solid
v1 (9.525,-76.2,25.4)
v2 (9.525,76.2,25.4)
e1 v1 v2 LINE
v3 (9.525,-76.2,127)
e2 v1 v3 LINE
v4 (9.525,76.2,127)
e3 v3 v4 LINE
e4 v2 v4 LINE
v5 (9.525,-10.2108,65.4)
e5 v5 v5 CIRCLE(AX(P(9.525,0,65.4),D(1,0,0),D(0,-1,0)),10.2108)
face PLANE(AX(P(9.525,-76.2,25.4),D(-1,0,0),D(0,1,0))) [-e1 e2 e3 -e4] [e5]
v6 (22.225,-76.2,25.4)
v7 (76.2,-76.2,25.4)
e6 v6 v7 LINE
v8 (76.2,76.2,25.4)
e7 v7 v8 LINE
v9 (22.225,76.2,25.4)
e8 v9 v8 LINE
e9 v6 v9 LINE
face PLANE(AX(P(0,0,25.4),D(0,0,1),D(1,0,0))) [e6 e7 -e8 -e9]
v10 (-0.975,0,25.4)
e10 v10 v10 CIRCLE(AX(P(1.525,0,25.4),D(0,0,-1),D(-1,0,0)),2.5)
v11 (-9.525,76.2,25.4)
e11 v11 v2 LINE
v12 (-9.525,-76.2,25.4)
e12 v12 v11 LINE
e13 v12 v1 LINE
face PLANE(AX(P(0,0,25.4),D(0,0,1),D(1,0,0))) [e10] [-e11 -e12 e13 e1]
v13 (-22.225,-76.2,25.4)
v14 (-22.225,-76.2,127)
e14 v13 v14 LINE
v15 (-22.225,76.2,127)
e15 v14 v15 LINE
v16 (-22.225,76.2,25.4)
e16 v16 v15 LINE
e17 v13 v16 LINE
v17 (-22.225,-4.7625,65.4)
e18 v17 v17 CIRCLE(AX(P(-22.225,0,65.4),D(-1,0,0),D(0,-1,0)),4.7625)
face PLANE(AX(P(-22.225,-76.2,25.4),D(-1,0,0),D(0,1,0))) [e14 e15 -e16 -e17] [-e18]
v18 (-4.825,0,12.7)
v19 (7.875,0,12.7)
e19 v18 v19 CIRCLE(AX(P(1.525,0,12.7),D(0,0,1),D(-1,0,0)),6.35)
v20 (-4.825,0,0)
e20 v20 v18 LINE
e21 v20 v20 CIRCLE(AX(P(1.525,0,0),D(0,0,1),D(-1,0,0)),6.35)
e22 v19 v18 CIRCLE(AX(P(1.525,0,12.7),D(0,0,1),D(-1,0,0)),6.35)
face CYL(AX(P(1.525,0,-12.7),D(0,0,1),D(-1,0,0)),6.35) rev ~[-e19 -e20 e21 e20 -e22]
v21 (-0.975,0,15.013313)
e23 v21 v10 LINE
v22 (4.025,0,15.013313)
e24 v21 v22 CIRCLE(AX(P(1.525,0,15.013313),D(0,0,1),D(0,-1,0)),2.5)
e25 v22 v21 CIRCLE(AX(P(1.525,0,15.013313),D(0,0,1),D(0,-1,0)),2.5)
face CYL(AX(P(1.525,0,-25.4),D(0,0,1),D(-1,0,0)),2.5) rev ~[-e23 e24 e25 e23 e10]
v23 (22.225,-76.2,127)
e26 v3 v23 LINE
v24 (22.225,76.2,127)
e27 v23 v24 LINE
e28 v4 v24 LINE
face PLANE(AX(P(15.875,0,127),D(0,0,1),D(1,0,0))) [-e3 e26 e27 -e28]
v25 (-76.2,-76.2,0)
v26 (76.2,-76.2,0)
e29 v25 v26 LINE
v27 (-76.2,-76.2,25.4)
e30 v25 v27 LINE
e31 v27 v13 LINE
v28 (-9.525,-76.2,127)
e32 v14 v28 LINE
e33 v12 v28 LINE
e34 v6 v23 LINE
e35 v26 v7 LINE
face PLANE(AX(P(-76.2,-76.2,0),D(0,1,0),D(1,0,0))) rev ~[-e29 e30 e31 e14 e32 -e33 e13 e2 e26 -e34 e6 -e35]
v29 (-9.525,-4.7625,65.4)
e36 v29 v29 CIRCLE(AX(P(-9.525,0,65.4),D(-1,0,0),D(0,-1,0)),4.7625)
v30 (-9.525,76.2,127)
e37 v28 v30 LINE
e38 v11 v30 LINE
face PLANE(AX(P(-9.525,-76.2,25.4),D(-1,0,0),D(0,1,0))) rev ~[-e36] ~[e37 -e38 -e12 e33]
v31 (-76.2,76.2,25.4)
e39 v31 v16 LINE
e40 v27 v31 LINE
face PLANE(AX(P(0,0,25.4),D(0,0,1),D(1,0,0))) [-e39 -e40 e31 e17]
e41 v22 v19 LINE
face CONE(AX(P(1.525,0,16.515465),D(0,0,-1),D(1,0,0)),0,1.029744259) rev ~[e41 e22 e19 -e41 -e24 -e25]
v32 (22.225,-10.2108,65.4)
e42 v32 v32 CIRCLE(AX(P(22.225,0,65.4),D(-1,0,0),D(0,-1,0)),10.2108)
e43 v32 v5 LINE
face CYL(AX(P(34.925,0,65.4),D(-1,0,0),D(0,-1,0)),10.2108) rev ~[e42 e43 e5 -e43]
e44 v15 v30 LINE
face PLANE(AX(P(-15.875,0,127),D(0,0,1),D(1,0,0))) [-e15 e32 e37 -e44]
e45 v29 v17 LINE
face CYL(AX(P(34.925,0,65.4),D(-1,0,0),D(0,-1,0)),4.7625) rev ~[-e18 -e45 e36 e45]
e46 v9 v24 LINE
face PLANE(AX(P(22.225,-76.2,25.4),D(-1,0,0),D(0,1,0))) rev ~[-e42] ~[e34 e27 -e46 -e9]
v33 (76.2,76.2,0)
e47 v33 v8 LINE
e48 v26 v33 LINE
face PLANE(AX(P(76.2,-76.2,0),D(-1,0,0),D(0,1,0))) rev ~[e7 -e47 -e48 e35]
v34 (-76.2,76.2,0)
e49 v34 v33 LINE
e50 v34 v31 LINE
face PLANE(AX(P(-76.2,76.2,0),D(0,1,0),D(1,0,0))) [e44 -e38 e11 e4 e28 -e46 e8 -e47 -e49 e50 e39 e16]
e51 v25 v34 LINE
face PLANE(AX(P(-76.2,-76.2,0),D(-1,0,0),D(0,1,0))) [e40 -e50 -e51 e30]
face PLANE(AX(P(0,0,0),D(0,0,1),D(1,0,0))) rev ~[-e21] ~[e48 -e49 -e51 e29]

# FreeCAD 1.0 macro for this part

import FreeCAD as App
import Part
import Sketcher
from FreeCAD import Vector
Q = App.Units.Quantity

doc = App.newDocument("Part")
body = doc.addObject("PartDesign::Body", "Body")

sketch1 = doc.addObject("Sketcher::SketchObject", "Sketch")
body.addObject(sketch1)
sketch1.AttachmentSupport = (doc.XY_Plane, [""])
sketch1.MapMode = "FlatFace"
sketch1.addGeometry(Part.LineSegment(Vector(-76.2, 76.2, 0), Vector(-76.2, -76.2, 0)), False)
sketch1.addGeometry(Part.LineSegment(Vector(-76.2, -76.2, 0), Vector(76.2, -76.2, 0)), False)
sketch1.addGeometry(Part.LineSegment(Vector(76.2, -76.2, 0), Vector(76.2, 76.2, 0)), False)
sketch1.addGeometry(Part.LineSegment(Vector(76.2, 76.2, 0), Vector(-76.2, 76.2, 0)), False)
sketch1.addConstraint(Sketcher.Constraint("Coincident", 0, 2, 1, 1))
sketch1.addConstraint(Sketcher.Constraint("Coincident", 1, 2, 2, 1))
sketch1.addConstraint(Sketcher.Constraint("Coincident", 2, 2, 3, 1))
sketch1.addConstraint(Sketcher.Constraint("Coincident", 3, 2, 0, 1))
sketch1.addConstraint(Sketcher.Constraint("Vertical", 0))
sketch1.addConstraint(Sketcher.Constraint("Horizontal", 1))
sketch1.addConstraint(Sketcher.Constraint("Vertical", 2))
sketch1.addConstraint(Sketcher.Constraint("Horizontal", 3))
sketch1.addConstraint(Sketcher.Constraint("Symmetric", 0, 2, 2, 2, -1, 1))
sketch1.addConstraint(Sketcher.Constraint("Equal", 3, 0))
sketch1.addConstraint(Sketcher.Constraint("DistanceX", 1, 1, 1, 2, Q("6 in")))
pad1 = doc.addObject("PartDesign::Pad", "Pad")
body.addObject(pad1)
pad1.Profile = sketch1
pad1.Length = Q("1 in")

sketch2 = doc.addObject("Sketcher::SketchObject", "Sketch001")
body.addObject(sketch2)
sketch2.AttachmentSupport = (doc.XY_Plane, [""])
sketch2.MapMode = "FlatFace"
sketch2.AttachmentOffset = App.Placement(Vector(0, 0, 1 * 25.4), App.Rotation())
sketch2.addGeometry(Part.LineSegment(Vector(-22.225, 76.2, 0), Vector(-22.225, -76.2, 0)), False)
sketch2.addGeometry(Part.LineSegment(Vector(-22.225, -76.2, 0), Vector(-9.525, -76.2, 0)), False)
sketch2.addGeometry(Part.LineSegment(Vector(-9.525, -76.2, 0), Vector(-9.525, 76.2, 0)), False)
sketch2.addGeometry(Part.LineSegment(Vector(-9.525, 76.2, 0), Vector(-22.225, 76.2, 0)), False)
sketch2.addGeometry(Part.LineSegment(Vector(9.525, 76.2, 0), Vector(9.525, -76.2, 0)), False)
sketch2.addGeometry(Part.LineSegment(Vector(9.525, -76.2, 0), Vector(22.225, -76.2, 0)), False)
sketch2.addGeometry(Part.LineSegment(Vector(22.225, -76.2, 0), Vector(22.225, 76.2, 0)), False)
sketch2.addGeometry(Part.LineSegment(Vector(22.225, 76.2, 0), Vector(9.525, 76.2, 0)), False)
sketch2.addConstraint(Sketcher.Constraint("Coincident", 0, 2, 1, 1))
sketch2.addConstraint(Sketcher.Constraint("Coincident", 1, 2, 2, 1))
sketch2.addConstraint(Sketcher.Constraint("Coincident", 2, 2, 3, 1))
sketch2.addConstraint(Sketcher.Constraint("Coincident", 3, 2, 0, 1))
sketch2.addConstraint(Sketcher.Constraint("Coincident", 4, 2, 5, 1))
sketch2.addConstraint(Sketcher.Constraint("Coincident", 5, 2, 6, 1))
sketch2.addConstraint(Sketcher.Constraint("Coincident", 6, 2, 7, 1))
sketch2.addConstraint(Sketcher.Constraint("Coincident", 7, 2, 4, 1))
sketch2.addConstraint(Sketcher.Constraint("Vertical", 0))
sketch2.addConstraint(Sketcher.Constraint("Horizontal", 1))
sketch2.addConstraint(Sketcher.Constraint("Vertical", 2))
sketch2.addConstraint(Sketcher.Constraint("Horizontal", 3))
sketch2.addConstraint(Sketcher.Constraint("Vertical", 4))
sketch2.addConstraint(Sketcher.Constraint("Horizontal", 5))
sketch2.addConstraint(Sketcher.Constraint("Vertical", 6))
sketch2.addConstraint(Sketcher.Constraint("Horizontal", 7))
sketch2.addConstraint(Sketcher.Constraint("Symmetric", 2, 2, 4, 2, -1, 1))
sketch2.addConstraint(Sketcher.Constraint("Symmetric", 0, 2, 6, 2, -1, 1))
sketch2.addConstraint(Sketcher.Constraint("Horizontal", 1, 2, 4, 2))
sketch2.addConstraint(Sketcher.Constraint("DistanceY", 0, 2, 0, 1, Q("6 in")))
sketch2.addConstraint(Sketcher.Constraint("DistanceX", 1, 1, 1, 2, Q("0.5 in")))
sketch2.addConstraint(Sketcher.Constraint("DistanceX", 1, 2, 4, 2, Q("0.75 in")))
pad2 = doc.addObject("PartDesign::Pad", "Pad001")
body.addObject(pad2)
pad2.Profile = sketch2
pad2.Length = Q("4 in")

sketch3 = doc.addObject("Sketcher::SketchObject", "Sketch002")
body.addObject(sketch3)
sketch3.AttachmentSupport = (doc.YZ_Plane, [""])
sketch3.MapMode = "FlatFace"
sketch3.AttachmentOffset = App.Placement(Vector(0, 0, 0.875 * 25.4), App.Rotation())
sketch3.addGeometry(Part.Circle(Vector(0, 65.4, 0), Vector(0, 0, 1), 10.2108), False)
sketch3.addConstraint(Sketcher.Constraint("PointOnObject", 0, 3, -2))
sketch3.addConstraint(Sketcher.Constraint("Diameter", 0, Q("0.804 in")))
sketch3.addConstraint(Sketcher.Constraint("DistanceY", -1, 1, 0, 3, Q("65.4 mm")))
doc.recompute()
hole = doc.addObject("PartDesign::Hole", "Hole")
body.addObject(hole)
hole.Profile = sketch3
hole.ThreadType = "None"
hole.Diameter = Q("0.804 in")
hole.DepthType = "Dimension"
hole.Depth = Q("0.5 in")
hole.DrillPoint = "Angled"
hole.DrillPointAngle = 118

sketch4 = doc.addObject("Sketcher::SketchObject", "Sketch003")
body.addObject(sketch4)
sketch4.AttachmentSupport = (doc.XY_Plane, [""])
sketch4.MapMode = "FlatFace"
sketch4.addGeometry(Part.Circle(Vector(1.525, 0, 0), Vector(0, 0, 1), 2.5), False)
sketch4.addConstraint(Sketcher.Constraint("PointOnObject", 0, 3, -1))
sketch4.addConstraint(Sketcher.Constraint("Diameter", 0, Q("5 mm")))
sketch4.addConstraint(Sketcher.Constraint("DistanceX", -1, 1, 0, 3, Q("1.525 mm")))
doc.recompute()
hole2 = doc.addObject("PartDesign::Hole", "Hole001")
body.addObject(hole2)
hole2.Profile = sketch4
hole2.ThreadType = "None"
hole2.Diameter = 5
hole2.DepthType = "Dimension"
hole2.Depth = Q("1 in")
hole2.DrillPoint = "Angled"
hole2.DrillPointAngle = 118
hole2.Reversed = True

sketch5 = doc.addObject("Sketcher::SketchObject", "Sketch004")
body.addObject(sketch5)
sketch5.AttachmentSupport = (doc.XY_Plane, [""])
sketch5.MapMode = "FlatFace"
sketch5.addGeometry(Part.Circle(Vector(1.525, 0, 0), Vector(0, 0, 1), 6.35), False)
sketch5.addConstraint(Sketcher.Constraint("PointOnObject", 0, 3, -1))
sketch5.addConstraint(Sketcher.Constraint("Diameter", 0, Q("0.5 in")))
sketch5.addConstraint(Sketcher.Constraint("DistanceX", -1, 1, 0, 3, Q("1.525 mm")))
doc.recompute()
hole3 = doc.addObject("PartDesign::Hole", "Hole002")
body.addObject(hole3)
hole3.Profile = sketch5
hole3.ThreadType = "None"
hole3.Diameter = Q("0.5 in")
hole3.DepthType = "Dimension"
hole3.Depth = Q("0.5 in")
hole3.DrillPoint = "Angled"
hole3.DrillPointAngle = 118
hole3.Reversed = True

sketch6 = doc.addObject("Sketcher::SketchObject", "Sketch005")
body.addObject(sketch6)
sketch6.AttachmentSupport = (doc.YZ_Plane, [""])
sketch6.MapMode = "FlatFace"
sketch6.AttachmentOffset = App.Placement(Vector(0, 0, -0.375 * 25.4), App.Rotation())
sketch6.addGeometry(Part.Circle(Vector(0, 65.4, 0), Vector(0, 0, 1), 4.7625), False)
sketch6.addConstraint(Sketcher.Constraint("PointOnObject", 0, 3, -2))
sketch6.addConstraint(Sketcher.Constraint("Diameter", 0, Q("0.375 in")))
sketch6.addConstraint(Sketcher.Constraint("DistanceY", -1, 1, 0, 3, Q("65.4 mm")))
doc.recompute()
hole4 = doc.addObject("PartDesign::Hole", "Hole003")
body.addObject(hole4)
hole4.Profile = sketch6
hole4.ThreadType = "None"
hole4.Diameter = Q("0.375 in")
hole4.DepthType = "Dimension"
hole4.Depth = Q("1.75 in")
hole4.DrillPoint = "Angled"
hole4.DrillPointAngle = 118

doc.recompute()
